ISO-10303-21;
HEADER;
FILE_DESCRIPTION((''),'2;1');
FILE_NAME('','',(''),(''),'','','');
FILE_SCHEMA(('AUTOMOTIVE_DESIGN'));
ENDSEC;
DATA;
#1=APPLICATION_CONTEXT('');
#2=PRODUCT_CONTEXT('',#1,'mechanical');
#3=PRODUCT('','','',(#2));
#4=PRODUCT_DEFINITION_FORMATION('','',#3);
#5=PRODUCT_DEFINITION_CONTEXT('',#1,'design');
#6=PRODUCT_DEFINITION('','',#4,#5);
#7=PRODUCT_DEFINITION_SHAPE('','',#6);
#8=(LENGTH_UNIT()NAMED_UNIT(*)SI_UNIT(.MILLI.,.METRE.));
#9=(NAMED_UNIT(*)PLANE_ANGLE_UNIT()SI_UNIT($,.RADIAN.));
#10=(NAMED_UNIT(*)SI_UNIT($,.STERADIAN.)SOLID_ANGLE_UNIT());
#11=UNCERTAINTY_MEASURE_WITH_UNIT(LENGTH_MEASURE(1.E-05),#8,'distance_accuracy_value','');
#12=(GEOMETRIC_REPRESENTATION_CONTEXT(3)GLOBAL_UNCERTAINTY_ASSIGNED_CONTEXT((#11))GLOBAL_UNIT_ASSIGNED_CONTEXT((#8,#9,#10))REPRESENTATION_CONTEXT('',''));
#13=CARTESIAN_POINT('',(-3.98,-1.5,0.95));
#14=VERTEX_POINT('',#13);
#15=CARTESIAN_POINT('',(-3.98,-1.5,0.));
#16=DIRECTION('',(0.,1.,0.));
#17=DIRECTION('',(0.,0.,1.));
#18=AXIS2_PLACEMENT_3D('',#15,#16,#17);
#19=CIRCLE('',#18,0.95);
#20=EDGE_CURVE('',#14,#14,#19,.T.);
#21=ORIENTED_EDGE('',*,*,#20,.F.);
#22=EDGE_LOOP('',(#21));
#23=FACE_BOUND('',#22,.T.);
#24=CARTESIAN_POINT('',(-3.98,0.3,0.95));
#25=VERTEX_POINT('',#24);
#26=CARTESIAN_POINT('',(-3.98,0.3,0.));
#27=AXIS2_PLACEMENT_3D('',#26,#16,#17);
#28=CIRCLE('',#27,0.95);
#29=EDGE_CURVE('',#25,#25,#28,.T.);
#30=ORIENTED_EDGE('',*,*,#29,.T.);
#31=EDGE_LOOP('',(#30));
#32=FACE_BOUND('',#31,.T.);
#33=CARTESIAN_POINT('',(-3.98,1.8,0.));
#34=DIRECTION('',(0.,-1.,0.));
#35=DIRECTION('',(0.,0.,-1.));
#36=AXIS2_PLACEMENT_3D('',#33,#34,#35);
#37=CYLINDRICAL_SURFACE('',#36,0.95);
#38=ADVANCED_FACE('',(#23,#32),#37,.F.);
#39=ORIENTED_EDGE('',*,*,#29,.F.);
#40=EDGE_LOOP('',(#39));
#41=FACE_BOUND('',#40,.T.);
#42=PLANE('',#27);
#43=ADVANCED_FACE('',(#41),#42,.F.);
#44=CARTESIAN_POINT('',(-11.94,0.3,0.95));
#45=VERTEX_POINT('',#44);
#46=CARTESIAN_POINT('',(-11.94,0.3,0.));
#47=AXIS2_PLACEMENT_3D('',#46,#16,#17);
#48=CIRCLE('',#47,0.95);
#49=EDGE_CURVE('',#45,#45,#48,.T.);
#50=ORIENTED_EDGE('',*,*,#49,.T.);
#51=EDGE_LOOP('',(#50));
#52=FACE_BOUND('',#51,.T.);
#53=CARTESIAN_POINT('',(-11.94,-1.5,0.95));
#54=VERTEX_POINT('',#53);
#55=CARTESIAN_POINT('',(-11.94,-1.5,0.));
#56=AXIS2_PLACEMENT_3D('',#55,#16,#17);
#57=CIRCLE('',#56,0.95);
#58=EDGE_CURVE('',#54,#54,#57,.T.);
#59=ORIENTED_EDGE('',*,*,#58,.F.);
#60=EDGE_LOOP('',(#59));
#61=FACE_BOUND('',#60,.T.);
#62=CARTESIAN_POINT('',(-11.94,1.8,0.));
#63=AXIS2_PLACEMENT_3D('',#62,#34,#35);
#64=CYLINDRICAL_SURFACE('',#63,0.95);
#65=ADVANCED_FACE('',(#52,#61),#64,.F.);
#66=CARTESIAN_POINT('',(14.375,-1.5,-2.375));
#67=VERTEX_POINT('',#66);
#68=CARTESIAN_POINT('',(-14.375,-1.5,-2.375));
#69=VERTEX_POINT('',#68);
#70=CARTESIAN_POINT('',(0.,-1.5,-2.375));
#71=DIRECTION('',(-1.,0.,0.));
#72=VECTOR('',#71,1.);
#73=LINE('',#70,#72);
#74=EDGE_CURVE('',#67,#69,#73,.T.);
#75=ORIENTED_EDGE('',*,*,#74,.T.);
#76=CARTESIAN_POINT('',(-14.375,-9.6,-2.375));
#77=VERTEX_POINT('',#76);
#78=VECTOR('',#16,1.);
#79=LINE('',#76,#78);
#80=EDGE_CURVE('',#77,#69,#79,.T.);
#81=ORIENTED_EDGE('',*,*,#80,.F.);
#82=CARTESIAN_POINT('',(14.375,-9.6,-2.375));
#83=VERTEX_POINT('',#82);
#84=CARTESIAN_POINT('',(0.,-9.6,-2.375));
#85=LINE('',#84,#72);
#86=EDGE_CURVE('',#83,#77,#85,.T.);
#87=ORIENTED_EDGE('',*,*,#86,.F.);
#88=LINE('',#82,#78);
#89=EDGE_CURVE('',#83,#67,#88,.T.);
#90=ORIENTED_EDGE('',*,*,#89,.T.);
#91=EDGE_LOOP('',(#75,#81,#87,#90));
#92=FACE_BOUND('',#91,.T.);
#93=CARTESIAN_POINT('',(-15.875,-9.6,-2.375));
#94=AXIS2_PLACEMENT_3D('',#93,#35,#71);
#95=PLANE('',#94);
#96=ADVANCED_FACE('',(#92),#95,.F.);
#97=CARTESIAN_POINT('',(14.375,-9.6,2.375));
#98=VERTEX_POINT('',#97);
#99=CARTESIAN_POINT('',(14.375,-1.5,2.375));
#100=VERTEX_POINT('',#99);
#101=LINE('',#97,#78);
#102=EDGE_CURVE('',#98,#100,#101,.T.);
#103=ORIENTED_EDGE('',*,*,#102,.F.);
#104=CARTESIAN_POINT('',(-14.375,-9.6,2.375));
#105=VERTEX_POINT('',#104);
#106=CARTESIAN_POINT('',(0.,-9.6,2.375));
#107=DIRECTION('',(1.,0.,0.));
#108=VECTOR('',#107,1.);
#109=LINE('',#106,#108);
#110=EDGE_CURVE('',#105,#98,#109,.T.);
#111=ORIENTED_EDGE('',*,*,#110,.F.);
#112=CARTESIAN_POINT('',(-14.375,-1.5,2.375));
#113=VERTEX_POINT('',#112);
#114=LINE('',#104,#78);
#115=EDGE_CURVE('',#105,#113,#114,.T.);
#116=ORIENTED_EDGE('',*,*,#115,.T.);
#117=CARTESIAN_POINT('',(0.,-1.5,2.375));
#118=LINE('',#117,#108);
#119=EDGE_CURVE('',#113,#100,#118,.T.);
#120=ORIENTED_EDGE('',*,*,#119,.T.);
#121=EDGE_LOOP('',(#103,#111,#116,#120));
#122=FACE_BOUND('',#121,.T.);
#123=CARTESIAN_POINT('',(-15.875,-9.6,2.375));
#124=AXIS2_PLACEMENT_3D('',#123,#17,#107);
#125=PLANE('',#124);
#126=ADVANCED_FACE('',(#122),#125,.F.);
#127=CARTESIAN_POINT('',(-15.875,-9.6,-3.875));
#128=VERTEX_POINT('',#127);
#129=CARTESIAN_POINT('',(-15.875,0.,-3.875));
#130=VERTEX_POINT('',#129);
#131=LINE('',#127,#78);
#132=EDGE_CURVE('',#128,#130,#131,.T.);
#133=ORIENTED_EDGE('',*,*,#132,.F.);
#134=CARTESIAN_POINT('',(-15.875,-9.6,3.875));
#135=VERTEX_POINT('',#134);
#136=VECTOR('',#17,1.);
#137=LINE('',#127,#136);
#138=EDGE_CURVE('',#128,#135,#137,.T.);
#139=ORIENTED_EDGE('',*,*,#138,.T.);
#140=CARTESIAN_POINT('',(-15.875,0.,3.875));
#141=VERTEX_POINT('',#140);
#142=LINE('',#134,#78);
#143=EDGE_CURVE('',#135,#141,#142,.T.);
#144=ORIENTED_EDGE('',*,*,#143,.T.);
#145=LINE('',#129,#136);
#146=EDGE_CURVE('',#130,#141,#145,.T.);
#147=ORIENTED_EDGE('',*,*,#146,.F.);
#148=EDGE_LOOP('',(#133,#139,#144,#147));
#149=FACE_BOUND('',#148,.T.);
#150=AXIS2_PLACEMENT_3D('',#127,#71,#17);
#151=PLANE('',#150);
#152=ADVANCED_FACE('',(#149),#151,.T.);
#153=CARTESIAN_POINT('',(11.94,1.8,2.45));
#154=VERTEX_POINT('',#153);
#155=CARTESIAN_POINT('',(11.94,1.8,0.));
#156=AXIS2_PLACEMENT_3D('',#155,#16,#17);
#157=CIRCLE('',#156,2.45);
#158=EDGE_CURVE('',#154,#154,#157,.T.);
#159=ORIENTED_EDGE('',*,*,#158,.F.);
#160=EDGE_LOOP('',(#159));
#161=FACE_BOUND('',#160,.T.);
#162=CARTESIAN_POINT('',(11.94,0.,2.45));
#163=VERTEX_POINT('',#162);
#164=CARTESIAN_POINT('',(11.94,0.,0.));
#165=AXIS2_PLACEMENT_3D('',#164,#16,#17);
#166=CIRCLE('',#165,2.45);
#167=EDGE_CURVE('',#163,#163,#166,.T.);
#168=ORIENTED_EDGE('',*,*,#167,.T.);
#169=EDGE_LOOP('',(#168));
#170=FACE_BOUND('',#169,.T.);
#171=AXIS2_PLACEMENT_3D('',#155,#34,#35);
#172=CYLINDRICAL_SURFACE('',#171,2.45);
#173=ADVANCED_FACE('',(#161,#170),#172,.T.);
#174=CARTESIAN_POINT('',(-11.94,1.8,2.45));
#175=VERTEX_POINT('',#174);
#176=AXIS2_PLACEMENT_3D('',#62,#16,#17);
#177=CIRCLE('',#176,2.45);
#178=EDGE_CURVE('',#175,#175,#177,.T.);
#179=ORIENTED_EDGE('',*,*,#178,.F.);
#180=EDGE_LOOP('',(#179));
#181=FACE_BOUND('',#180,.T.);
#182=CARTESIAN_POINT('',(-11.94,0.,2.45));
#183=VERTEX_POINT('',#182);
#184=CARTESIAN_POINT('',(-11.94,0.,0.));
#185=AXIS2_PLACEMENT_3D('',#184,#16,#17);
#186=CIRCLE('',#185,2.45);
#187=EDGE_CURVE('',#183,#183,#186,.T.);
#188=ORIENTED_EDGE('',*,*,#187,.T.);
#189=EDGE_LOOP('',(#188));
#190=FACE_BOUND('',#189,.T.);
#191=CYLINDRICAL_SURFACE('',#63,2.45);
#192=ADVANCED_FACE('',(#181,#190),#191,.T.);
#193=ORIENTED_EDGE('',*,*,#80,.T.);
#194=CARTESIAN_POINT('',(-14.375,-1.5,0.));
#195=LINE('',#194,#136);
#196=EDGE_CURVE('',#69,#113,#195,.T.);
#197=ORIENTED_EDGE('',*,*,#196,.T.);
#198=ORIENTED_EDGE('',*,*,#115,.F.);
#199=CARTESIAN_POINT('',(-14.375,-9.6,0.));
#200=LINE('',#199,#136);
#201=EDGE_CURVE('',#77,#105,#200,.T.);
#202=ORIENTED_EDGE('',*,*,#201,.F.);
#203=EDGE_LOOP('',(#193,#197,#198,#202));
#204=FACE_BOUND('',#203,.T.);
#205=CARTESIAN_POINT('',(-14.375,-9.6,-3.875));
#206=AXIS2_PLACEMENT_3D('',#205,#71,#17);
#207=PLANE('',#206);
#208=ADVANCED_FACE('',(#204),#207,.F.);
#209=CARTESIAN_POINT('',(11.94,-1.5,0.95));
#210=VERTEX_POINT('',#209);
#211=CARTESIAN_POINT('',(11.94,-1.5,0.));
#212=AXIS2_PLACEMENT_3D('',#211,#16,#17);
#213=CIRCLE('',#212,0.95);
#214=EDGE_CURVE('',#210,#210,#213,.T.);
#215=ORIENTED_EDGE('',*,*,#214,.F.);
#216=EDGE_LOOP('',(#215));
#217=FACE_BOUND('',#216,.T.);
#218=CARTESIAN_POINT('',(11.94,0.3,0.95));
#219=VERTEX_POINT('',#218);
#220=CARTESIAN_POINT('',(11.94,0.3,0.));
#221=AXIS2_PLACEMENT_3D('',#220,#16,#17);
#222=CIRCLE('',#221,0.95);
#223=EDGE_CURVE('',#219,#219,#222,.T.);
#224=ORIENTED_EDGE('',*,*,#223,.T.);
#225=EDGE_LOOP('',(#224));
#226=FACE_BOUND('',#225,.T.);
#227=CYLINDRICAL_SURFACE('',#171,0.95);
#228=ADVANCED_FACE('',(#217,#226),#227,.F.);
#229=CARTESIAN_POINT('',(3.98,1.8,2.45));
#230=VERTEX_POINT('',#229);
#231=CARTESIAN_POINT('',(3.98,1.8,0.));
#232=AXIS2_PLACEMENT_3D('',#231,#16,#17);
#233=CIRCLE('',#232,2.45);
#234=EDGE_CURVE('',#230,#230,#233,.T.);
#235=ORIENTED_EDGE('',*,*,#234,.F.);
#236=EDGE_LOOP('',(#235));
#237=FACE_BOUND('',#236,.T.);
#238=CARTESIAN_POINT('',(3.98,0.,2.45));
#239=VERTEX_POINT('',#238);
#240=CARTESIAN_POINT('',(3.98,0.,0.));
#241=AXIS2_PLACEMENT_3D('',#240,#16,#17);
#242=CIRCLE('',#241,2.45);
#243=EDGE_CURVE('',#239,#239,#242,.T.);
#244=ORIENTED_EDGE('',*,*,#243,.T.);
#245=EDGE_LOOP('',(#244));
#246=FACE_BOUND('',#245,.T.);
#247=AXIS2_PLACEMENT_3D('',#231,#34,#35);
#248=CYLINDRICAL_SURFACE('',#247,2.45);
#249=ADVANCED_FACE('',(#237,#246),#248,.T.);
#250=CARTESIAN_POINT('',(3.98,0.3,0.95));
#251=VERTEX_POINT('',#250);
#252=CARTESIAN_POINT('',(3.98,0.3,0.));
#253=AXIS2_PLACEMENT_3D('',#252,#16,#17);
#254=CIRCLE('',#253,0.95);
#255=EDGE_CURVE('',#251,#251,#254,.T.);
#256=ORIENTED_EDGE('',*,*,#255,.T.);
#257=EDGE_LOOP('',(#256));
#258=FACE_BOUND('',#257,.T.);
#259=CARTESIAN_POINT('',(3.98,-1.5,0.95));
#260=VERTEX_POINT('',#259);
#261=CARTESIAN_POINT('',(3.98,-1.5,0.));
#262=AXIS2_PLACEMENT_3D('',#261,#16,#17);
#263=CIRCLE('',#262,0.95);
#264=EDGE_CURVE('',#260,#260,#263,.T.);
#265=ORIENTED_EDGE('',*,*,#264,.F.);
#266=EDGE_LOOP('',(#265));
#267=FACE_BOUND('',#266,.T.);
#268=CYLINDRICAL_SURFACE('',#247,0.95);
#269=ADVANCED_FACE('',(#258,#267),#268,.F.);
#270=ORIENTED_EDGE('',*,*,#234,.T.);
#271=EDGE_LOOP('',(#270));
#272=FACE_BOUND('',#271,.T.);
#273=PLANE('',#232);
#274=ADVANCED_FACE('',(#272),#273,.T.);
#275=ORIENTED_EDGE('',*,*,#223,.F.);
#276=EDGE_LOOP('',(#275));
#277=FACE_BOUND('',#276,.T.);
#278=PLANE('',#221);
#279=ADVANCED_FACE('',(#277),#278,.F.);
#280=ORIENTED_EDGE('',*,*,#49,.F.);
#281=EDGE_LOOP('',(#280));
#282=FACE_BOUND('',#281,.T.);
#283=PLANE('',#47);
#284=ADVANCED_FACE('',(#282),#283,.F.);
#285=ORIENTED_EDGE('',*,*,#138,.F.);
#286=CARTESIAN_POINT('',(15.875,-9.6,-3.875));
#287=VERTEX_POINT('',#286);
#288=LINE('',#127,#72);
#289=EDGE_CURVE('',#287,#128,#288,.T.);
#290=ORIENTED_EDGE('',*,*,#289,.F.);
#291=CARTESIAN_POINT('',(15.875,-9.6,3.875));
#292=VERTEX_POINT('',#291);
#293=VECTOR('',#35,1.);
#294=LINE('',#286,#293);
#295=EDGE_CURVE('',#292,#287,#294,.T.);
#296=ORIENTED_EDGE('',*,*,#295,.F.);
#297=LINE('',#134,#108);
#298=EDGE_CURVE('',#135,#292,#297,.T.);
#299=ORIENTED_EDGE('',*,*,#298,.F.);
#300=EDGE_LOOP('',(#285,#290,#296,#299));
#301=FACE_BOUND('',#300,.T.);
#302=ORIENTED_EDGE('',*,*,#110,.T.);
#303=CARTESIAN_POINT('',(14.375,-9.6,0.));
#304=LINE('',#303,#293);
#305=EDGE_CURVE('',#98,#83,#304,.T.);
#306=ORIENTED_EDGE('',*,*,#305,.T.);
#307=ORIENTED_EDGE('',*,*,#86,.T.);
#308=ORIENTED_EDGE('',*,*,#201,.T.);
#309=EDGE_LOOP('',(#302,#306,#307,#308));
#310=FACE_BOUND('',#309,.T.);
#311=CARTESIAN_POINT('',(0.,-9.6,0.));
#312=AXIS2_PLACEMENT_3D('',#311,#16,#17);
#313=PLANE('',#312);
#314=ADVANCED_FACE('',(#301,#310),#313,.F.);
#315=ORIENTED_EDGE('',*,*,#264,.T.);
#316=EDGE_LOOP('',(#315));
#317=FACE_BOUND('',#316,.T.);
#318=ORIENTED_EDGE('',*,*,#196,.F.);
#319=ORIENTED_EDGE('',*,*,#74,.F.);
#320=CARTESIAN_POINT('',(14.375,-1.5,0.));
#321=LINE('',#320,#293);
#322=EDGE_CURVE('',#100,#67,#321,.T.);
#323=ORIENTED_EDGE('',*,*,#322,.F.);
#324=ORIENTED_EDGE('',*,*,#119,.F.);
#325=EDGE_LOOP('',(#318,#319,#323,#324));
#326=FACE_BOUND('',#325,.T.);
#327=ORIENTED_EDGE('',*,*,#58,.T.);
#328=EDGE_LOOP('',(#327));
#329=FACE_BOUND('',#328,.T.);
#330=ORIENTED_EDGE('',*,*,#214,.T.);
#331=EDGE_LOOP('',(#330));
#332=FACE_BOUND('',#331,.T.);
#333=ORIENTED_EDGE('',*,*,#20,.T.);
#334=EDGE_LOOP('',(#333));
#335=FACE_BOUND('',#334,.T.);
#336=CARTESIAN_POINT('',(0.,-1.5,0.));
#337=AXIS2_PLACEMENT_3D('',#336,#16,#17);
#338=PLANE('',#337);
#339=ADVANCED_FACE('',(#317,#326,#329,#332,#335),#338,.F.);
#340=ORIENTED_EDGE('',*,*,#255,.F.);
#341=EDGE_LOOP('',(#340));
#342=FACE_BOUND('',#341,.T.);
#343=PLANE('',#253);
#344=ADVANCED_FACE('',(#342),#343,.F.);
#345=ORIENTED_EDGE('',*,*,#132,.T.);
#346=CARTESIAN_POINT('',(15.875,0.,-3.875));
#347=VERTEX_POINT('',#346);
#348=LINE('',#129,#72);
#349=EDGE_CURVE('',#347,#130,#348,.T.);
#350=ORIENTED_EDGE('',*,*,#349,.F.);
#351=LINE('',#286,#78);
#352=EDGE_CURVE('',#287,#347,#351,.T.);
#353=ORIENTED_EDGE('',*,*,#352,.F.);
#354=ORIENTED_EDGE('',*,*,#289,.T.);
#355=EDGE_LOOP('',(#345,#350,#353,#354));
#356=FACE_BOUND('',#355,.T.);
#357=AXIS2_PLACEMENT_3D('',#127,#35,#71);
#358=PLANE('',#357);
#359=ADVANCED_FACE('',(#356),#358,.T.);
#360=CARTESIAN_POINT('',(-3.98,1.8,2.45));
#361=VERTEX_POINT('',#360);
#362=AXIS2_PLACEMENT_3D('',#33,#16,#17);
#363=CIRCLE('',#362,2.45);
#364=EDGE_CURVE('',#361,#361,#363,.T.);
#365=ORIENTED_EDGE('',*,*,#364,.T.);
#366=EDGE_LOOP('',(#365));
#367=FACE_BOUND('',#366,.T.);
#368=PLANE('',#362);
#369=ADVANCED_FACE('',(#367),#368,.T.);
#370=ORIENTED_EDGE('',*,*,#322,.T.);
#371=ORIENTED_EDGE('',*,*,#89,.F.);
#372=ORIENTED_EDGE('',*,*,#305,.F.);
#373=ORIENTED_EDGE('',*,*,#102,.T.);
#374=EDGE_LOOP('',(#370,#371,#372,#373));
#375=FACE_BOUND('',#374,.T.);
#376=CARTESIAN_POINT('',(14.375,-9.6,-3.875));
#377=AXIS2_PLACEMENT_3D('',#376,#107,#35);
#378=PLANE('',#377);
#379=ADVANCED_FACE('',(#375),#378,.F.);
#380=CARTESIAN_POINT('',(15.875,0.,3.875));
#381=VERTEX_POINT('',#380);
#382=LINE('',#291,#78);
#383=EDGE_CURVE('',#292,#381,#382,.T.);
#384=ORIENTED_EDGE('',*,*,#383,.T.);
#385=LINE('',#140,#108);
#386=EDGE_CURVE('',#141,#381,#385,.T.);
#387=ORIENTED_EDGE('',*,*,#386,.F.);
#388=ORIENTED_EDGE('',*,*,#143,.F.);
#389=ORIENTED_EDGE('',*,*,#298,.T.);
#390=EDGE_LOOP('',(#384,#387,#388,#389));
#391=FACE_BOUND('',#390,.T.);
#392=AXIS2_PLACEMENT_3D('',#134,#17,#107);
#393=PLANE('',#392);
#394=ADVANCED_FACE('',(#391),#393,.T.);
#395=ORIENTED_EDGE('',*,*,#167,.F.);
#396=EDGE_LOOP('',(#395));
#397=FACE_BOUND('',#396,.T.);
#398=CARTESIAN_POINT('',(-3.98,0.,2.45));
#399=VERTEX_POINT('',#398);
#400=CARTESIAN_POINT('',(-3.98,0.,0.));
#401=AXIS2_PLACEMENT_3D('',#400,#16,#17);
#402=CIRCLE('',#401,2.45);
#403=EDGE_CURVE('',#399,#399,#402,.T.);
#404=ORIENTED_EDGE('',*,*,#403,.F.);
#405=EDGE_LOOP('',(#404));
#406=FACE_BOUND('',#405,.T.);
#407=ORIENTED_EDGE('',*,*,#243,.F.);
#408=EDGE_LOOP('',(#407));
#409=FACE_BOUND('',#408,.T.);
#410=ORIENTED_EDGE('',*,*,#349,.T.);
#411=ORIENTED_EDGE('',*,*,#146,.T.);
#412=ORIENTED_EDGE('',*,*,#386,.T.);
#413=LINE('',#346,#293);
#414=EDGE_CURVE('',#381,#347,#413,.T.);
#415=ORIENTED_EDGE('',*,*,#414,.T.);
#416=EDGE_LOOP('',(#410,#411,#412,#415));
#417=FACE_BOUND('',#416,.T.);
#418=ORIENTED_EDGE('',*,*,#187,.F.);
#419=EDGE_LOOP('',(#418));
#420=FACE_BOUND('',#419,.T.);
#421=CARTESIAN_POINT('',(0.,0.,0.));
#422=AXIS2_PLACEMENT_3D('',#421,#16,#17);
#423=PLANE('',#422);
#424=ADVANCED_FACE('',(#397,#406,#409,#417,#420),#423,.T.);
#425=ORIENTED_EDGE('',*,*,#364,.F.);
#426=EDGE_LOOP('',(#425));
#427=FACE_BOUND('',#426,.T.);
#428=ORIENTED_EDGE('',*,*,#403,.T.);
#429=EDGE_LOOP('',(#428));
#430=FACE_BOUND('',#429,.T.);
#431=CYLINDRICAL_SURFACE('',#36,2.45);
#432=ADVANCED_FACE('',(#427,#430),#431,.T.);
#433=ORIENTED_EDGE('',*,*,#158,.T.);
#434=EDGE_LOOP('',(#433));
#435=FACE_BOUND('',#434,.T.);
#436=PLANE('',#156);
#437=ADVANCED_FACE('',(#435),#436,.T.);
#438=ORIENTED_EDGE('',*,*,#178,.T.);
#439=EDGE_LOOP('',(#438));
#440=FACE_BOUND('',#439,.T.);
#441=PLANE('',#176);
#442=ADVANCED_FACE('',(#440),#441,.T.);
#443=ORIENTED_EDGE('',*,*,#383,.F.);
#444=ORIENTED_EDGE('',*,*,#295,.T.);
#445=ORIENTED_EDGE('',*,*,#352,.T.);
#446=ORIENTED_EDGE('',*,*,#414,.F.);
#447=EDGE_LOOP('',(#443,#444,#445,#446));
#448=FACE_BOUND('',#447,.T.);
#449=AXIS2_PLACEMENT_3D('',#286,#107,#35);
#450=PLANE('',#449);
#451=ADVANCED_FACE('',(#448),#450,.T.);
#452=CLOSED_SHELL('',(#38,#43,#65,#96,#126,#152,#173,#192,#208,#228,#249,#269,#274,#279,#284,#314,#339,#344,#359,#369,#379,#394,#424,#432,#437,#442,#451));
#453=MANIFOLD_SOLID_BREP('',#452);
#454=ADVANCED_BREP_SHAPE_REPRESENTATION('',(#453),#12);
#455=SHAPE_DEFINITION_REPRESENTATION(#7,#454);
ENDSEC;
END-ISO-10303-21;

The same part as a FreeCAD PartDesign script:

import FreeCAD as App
import Part
import Sketcher

V = App.Vector
Q = App.Units.Quantity


def faces_at(feature, points):
    """Names of the faces that lie closest to the given points."""
    faces = feature.Shape.Faces
    near = lambda p: min(range(len(faces)), key=lambda i: faces[i].distToShape(Part.Vertex(*p))[0])
    return sorted({f"Face{near(p) + 1}" for p in points})


def add_polygon(sketch, points):
    """Adds a closed chain of lines whose ends are joined by coincident constraints."""
    first, n = sketch.GeometryCount, len(points)
    for a, b in zip(points, points[1:] + points[:1]):
        sketch.addGeometry(Part.LineSegment(App.Vector(*a, 0), App.Vector(*b, 0)), False)
    for i in range(n):
        sketch.addConstraint(Sketcher.Constraint("Coincident", first + i, 2, first + (i + 1) % n, 1))

doc = App.newDocument("Part")
body = doc.addObject("PartDesign::Body", "Body")

# Sketch on XZ plane
sketch1 = body.newObject("Sketcher::SketchObject", "Sketch")
sketch1.AttachmentSupport = (doc.getObject("XZ_Plane"), [""])
sketch1.MapMode = "FlatFace"
add_polygon(sketch1, [(-16, -4), (-16, 4), (16, 4), (16, -4)])  # lines 0-3
sketch1.addConstraint([
    Sketcher.Constraint("Vertical", 0),
    Sketcher.Constraint("Horizontal", 1),
    Sketcher.Constraint("Vertical", 2),
    Sketcher.Constraint("Horizontal", 3),
    Sketcher.Constraint("Symmetric", 0, 2, 2, 2, -1, 1),
    Sketcher.Constraint("DistanceX", 1, 1, 1, 2, Q("31.75 mm")),
    Sketcher.Constraint("DistanceY", 0, 1, 0, 2, Q("7.75 mm")),
])
pad1 = body.newObject("PartDesign::Pad", "Pad")
pad1.Profile = sketch1
pad1.Length = 9.6

# Sketch on XZ plane
sketch2 = body.newObject("Sketcher::SketchObject", "Sketch001")
sketch2.AttachmentSupport = (doc.getObject("XZ_Plane"), [""])
sketch2.MapMode = "FlatFace"
sketch2.addGeometry([
    Part.Circle(V(-11.9, 0, 0), V(0, 0, 1), 2.5),
    Part.Circle(V(-4, 0, 0), V(0, 0, 1), 2.5),
    Part.Circle(V(4, 0, 0), V(0, 0, 1), 2.5),
    Part.Circle(V(11.9, 0, 0), V(0, 0, 1), 2.5),
], False)
sketch2.addConstraint([
    Sketcher.Constraint("Equal", 0, 1),
    Sketcher.Constraint("Equal", 1, 2),
    Sketcher.Constraint("Equal", 2, 3),
    Sketcher.Constraint("Symmetric", 1, 3, 2, 3, -1, 1),
    Sketcher.Constraint("Symmetric", 0, 3, 3, 3, -1, 1),
    Sketcher.Constraint("PointOnObject", 0, 3, -1),
    Sketcher.Constraint("PointOnObject", 1, 3, -1),
    Sketcher.Constraint("Diameter", 0, Q("4.9 mm")),
    Sketcher.Constraint("DistanceX", 0, 3, -1, 1, Q("11.94 mm")),
    Sketcher.Constraint("DistanceX", 1, 3, -1, 1, Q("3.98 mm")),
])
pad2 = body.newObject("PartDesign::Pad", "Pad001")
pad2.Profile = sketch2
pad2.Length = 1.8
pad2.Reversed = True
doc.recompute()

thickness = body.newObject("PartDesign::Thickness", "Thickness")
thickness.Base = (pad2, faces_at(pad2, [(0, -9.6, 0)]))
thickness.Value = 1.5
thickness.Reversed = True
thickness.Join = "Intersection"

doc.recompute()
